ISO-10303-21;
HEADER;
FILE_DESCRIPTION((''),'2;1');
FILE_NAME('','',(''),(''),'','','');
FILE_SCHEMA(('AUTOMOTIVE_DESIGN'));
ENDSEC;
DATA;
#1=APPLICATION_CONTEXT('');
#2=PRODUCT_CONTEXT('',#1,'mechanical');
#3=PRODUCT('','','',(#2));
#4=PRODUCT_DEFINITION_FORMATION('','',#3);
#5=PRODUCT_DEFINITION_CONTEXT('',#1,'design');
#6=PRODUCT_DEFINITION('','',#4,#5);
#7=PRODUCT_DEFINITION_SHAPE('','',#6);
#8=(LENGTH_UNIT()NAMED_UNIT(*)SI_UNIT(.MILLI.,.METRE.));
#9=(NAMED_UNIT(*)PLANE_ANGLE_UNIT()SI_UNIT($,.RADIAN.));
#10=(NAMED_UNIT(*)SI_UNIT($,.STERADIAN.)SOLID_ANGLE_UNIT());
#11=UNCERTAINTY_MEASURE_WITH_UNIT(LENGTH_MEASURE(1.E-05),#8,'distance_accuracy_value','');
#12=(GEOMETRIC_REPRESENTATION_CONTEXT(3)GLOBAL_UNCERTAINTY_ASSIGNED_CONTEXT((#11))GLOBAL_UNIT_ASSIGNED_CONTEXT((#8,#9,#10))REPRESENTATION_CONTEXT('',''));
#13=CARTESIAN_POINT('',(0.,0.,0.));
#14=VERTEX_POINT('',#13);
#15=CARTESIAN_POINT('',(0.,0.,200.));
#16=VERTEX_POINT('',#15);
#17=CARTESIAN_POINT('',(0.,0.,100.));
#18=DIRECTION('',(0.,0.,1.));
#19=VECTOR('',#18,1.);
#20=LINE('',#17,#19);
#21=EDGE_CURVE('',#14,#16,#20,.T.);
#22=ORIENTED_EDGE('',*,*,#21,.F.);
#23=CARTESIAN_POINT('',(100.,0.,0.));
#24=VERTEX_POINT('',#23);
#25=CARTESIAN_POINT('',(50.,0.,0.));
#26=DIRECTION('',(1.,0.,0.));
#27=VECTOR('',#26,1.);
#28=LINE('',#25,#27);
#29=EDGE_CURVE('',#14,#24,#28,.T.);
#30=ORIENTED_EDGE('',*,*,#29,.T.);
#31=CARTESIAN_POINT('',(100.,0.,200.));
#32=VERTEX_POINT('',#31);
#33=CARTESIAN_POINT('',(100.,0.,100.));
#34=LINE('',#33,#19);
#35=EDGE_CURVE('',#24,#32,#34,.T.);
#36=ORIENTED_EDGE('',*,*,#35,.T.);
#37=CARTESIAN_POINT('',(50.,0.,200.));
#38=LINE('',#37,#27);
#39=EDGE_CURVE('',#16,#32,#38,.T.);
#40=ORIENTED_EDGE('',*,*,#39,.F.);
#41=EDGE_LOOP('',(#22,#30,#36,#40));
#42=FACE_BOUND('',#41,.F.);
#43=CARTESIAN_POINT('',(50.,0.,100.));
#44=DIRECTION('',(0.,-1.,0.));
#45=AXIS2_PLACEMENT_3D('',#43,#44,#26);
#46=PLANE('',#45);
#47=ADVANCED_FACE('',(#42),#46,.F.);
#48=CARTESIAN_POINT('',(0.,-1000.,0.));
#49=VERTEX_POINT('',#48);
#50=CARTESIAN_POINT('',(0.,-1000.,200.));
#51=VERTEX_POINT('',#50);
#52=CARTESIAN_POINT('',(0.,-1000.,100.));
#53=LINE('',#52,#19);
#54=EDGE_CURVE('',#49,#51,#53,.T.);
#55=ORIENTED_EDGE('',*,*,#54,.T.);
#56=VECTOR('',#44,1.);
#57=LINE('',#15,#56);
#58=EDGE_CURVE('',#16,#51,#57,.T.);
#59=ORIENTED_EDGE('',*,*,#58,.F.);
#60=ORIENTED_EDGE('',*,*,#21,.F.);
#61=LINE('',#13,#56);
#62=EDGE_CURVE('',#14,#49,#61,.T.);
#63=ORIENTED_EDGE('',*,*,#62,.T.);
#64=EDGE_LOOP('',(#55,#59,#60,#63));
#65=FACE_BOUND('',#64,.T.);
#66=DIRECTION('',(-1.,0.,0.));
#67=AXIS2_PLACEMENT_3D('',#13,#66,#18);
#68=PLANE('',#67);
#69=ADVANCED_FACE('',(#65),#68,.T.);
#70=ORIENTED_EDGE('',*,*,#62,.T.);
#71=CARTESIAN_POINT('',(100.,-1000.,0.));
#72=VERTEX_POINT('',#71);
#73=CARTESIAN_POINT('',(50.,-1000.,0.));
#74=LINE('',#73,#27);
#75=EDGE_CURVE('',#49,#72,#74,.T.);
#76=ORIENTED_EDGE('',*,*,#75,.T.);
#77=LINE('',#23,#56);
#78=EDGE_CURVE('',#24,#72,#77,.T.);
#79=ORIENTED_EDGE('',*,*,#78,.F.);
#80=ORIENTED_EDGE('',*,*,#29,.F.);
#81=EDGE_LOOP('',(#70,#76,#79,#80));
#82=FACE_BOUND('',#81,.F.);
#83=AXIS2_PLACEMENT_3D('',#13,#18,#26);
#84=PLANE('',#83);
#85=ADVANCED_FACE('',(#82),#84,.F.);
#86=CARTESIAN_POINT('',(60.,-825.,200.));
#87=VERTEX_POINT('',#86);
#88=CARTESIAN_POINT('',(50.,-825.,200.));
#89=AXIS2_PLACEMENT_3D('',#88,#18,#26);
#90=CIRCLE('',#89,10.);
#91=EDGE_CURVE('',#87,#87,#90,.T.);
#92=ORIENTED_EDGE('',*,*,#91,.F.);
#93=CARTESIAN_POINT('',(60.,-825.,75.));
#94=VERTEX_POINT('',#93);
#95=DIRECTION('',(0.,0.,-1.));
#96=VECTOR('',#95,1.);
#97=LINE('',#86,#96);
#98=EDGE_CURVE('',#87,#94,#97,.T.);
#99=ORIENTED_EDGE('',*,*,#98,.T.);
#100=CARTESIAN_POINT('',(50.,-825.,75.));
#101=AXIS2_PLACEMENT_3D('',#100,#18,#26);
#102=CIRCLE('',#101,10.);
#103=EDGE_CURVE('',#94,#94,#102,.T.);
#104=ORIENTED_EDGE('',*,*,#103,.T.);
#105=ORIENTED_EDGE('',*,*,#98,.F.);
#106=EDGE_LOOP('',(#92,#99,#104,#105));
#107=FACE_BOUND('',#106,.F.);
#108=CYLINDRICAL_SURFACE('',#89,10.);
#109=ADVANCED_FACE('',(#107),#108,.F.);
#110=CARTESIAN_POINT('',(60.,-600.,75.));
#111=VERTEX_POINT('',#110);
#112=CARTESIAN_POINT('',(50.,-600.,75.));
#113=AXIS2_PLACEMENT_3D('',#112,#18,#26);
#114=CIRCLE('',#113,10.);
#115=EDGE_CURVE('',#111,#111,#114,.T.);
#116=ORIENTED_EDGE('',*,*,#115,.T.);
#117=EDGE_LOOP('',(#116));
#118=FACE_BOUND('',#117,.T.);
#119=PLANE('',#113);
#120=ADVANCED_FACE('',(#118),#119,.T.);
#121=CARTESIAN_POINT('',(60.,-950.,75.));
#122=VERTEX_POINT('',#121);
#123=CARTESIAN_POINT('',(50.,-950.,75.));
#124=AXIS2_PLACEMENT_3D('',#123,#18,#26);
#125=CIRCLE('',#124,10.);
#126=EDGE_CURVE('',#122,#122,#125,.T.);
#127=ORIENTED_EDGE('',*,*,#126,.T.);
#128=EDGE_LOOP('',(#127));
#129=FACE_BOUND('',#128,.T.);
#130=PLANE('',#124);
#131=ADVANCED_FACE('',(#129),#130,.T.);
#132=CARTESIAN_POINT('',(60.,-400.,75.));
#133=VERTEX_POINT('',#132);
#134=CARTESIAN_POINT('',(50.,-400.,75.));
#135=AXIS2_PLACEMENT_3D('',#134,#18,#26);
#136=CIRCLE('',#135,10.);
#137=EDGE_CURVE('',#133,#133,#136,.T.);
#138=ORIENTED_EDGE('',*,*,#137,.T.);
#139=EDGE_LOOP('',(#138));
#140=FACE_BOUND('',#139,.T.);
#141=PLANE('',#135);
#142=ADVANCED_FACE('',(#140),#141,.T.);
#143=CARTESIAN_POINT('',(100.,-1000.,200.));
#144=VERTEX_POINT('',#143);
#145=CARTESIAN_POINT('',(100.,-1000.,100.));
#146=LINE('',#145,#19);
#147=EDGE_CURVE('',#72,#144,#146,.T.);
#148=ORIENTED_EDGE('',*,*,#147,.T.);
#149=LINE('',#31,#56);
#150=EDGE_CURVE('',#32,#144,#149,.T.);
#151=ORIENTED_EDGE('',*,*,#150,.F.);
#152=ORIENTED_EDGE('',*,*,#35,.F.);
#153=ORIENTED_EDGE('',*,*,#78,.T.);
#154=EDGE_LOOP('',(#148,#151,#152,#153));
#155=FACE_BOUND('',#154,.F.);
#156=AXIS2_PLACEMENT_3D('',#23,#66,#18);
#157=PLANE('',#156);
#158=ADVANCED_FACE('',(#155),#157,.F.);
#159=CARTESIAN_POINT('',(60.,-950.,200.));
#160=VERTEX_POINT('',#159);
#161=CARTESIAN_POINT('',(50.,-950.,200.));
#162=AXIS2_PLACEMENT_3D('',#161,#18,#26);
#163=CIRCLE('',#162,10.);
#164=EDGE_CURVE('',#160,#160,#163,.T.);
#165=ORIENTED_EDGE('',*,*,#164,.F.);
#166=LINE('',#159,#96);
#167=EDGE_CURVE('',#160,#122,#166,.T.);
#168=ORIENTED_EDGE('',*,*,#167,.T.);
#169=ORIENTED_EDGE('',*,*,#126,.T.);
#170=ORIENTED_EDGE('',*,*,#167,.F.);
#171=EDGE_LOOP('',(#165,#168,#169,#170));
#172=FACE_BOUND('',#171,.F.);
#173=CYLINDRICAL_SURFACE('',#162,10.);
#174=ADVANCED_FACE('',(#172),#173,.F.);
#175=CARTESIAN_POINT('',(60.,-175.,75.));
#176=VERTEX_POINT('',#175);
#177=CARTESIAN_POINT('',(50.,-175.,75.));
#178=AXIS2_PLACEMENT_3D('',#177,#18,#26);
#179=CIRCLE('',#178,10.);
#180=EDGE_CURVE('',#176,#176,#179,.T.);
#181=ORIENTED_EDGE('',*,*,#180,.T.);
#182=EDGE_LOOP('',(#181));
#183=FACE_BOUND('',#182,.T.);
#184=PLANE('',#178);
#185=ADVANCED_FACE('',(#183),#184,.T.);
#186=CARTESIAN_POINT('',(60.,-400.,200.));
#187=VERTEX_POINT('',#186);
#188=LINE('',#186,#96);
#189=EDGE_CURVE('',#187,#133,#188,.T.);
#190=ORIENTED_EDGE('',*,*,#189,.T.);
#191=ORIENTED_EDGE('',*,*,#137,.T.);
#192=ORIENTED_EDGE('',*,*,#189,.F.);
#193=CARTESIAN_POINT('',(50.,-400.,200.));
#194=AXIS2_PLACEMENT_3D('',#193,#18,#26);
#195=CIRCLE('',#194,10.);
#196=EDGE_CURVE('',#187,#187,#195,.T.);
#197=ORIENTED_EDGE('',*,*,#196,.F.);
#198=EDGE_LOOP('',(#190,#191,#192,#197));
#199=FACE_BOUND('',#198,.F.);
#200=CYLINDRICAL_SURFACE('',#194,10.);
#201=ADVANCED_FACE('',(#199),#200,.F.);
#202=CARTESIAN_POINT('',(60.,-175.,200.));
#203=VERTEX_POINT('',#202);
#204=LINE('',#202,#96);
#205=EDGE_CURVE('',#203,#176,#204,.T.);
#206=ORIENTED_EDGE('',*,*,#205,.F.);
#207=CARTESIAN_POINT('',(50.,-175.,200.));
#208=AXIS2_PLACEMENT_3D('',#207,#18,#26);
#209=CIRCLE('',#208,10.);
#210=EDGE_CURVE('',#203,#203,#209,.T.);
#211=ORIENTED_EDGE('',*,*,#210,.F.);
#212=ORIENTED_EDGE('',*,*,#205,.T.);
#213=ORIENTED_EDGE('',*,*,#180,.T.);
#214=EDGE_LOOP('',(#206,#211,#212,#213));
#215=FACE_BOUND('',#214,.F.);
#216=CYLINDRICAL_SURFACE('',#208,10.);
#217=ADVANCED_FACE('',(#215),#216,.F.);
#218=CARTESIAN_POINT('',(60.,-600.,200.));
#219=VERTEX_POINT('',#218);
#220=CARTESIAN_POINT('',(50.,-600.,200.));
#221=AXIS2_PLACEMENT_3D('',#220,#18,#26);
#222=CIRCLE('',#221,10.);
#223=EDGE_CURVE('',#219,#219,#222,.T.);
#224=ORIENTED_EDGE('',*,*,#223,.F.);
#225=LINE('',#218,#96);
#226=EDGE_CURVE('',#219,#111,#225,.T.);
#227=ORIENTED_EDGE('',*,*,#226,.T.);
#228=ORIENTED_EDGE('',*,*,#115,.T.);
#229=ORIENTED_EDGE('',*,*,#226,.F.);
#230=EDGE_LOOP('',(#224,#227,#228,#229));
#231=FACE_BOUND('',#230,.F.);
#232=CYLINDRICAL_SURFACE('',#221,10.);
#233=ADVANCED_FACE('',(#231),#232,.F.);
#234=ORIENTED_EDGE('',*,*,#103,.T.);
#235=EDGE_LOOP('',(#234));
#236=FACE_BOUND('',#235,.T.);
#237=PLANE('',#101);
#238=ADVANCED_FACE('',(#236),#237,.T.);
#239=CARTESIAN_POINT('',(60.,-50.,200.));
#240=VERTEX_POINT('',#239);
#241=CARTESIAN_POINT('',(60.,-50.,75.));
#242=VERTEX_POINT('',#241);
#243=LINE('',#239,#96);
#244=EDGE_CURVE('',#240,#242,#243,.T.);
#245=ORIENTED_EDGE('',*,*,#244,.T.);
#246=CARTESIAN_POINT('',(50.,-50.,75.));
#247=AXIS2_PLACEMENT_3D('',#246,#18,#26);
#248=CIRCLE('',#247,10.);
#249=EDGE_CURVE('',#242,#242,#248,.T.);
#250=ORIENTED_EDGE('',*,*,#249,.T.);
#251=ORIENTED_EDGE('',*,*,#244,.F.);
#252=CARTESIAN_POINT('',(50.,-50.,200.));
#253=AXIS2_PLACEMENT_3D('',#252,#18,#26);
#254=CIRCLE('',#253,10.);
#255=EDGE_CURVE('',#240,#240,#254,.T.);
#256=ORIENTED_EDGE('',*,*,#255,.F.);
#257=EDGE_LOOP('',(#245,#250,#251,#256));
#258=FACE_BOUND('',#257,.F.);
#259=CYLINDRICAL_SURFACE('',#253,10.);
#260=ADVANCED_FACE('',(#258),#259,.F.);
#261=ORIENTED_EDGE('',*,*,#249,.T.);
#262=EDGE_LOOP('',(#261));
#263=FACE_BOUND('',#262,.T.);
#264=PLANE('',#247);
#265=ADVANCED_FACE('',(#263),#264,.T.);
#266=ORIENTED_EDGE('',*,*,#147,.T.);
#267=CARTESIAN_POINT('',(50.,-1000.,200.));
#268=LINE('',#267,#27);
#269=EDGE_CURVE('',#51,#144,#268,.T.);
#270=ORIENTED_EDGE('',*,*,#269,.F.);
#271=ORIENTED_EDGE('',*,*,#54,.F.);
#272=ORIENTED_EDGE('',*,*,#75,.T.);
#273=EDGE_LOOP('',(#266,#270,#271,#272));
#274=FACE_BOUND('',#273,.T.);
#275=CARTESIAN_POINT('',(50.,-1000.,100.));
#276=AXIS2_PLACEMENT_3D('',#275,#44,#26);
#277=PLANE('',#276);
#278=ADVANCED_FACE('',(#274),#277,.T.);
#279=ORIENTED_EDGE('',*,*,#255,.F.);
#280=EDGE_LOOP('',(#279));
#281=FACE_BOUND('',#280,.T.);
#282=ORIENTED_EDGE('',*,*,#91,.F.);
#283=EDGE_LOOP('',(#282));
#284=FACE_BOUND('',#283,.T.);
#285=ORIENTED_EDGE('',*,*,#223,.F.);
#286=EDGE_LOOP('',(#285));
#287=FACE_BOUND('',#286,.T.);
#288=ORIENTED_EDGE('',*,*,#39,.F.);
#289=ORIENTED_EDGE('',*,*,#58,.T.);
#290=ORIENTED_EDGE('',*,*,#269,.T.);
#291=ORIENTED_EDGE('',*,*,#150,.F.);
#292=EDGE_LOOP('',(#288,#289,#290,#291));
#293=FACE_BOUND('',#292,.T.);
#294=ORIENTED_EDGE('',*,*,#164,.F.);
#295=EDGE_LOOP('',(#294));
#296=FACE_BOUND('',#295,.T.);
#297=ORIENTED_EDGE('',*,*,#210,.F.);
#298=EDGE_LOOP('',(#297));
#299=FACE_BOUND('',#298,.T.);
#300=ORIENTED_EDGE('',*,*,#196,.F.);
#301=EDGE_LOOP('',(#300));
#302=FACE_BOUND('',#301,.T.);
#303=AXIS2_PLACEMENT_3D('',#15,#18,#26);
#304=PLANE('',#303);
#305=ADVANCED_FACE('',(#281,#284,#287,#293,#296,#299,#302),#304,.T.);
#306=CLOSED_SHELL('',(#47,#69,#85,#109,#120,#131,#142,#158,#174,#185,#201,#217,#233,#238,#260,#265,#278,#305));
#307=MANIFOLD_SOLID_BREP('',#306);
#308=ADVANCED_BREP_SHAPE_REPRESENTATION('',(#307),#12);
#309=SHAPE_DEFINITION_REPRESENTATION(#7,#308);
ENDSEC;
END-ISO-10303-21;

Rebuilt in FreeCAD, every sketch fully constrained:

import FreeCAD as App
import Part
import Sketcher

doc = App.newDocument("Part")
body = doc.addObject("PartDesign::Body", "Body")

sketch1 = body.newObject("Sketcher::SketchObject", "Sketch")
sketch1.AttachmentSupport = (doc.getObject("XZ_Plane"), [""])
sketch1.MapMode = "FlatFace"
sketch1.addGeometry(Part.LineSegment(App.Vector(0, 200, 0), App.Vector(0, 0, 0)), False)
sketch1.addGeometry(Part.LineSegment(App.Vector(0, 0, 0), App.Vector(100, 0, 0)), False)
sketch1.addGeometry(Part.LineSegment(App.Vector(100, 0, 0), App.Vector(100, 200, 0)), False)
sketch1.addGeometry(Part.LineSegment(App.Vector(100, 200, 0), App.Vector(0, 200, 0)), False)
sketch1.addConstraint(Sketcher.Constraint("Coincident", 0, 2, 1, 1))
sketch1.addConstraint(Sketcher.Constraint("Coincident", 1, 2, 2, 1))
sketch1.addConstraint(Sketcher.Constraint("Coincident", 2, 2, 3, 1))
sketch1.addConstraint(Sketcher.Constraint("Coincident", 3, 2, 0, 1))
sketch1.addConstraint(Sketcher.Constraint("Vertical", 0))
sketch1.addConstraint(Sketcher.Constraint("Horizontal", 1))
sketch1.addConstraint(Sketcher.Constraint("Vertical", 2))
sketch1.addConstraint(Sketcher.Constraint("Horizontal", 3))
sketch1.addConstraint(Sketcher.Constraint("Coincident", 0, 2, -1, 1))
sketch1.addConstraint(Sketcher.Constraint("DistanceX", 1, 1, 1, 2, 100.0))
sketch1.addConstraint(Sketcher.Constraint("DistanceY", 0, 2, 0, 1, 200.0))
pad1 = body.newObject("PartDesign::Pad", "Pad")
pad1.Profile = sketch1
pad1.Length = 1000

sketch2 = body.newObject("Sketcher::SketchObject", "Sketch001")
sketch2.AttachmentSupport = (doc.getObject("XY_Plane"), [""])
sketch2.MapMode = "FlatFace"
sketch2.AttachmentOffset = App.Placement(App.Vector(0, 0, 200), App.Rotation())
sketch2.addGeometry(Part.Circle(App.Vector(50, -50, 0), App.Vector(0, 0, 1), 10), False)
sketch2.addGeometry(Part.Circle(App.Vector(50, -175, 0), App.Vector(0, 0, 1), 10), False)
sketch2.addGeometry(Part.Circle(App.Vector(50, -400, 0), App.Vector(0, 0, 1), 10), False)
sketch2.addGeometry(Part.Circle(App.Vector(50, -600, 0), App.Vector(0, 0, 1), 10), False)
sketch2.addGeometry(Part.Circle(App.Vector(50, -950, 0), App.Vector(0, 0, 1), 10), False)
sketch2.addGeometry(Part.Circle(App.Vector(50, -825, 0), App.Vector(0, 0, 1), 10), False)
sketch2.addConstraint(Sketcher.Constraint("Equal", 0, 1))
sketch2.addConstraint(Sketcher.Constraint("Equal", 1, 2))
sketch2.addConstraint(Sketcher.Constraint("Equal", 2, 3))
sketch2.addConstraint(Sketcher.Constraint("Equal", 3, 4))
sketch2.addConstraint(Sketcher.Constraint("Equal", 4, 5))
sketch2.addConstraint(Sketcher.Constraint("Vertical", 0, 3, 1, 3))
sketch2.addConstraint(Sketcher.Constraint("Vertical", 1, 3, 2, 3))
sketch2.addConstraint(Sketcher.Constraint("Vertical", 2, 3, 3, 3))
sketch2.addConstraint(Sketcher.Constraint("Vertical", 3, 3, 4, 3))
sketch2.addConstraint(Sketcher.Constraint("Vertical", 4, 3, 5, 3))
sketch2.addConstraint(Sketcher.Constraint("Diameter", 0, 20.0))
sketch2.addConstraint(Sketcher.Constraint("DistanceX", -1, 1, 0, 3, 50.0))
sketch2.addConstraint(Sketcher.Constraint("DistanceY", 0, 3, -1, 1, 50.0))
sketch2.addConstraint(Sketcher.Constraint("DistanceY", 1, 3, -1, 1, 175.0))
sketch2.addConstraint(Sketcher.Constraint("DistanceY", 2, 3, -1, 1, 400.0))
sketch2.addConstraint(Sketcher.Constraint("DistanceY", 3, 3, -1, 1, 600.0))
sketch2.addConstraint(Sketcher.Constraint("DistanceY", 4, 3, -1, 1, 950.0))
sketch2.addConstraint(Sketcher.Constraint("DistanceY", 5, 3, -1, 1, 825.0))
pocket1 = body.newObject("PartDesign::Pocket", "Pocket")
pocket1.Profile = sketch2
pocket1.Length = 125

doc.recompute()
